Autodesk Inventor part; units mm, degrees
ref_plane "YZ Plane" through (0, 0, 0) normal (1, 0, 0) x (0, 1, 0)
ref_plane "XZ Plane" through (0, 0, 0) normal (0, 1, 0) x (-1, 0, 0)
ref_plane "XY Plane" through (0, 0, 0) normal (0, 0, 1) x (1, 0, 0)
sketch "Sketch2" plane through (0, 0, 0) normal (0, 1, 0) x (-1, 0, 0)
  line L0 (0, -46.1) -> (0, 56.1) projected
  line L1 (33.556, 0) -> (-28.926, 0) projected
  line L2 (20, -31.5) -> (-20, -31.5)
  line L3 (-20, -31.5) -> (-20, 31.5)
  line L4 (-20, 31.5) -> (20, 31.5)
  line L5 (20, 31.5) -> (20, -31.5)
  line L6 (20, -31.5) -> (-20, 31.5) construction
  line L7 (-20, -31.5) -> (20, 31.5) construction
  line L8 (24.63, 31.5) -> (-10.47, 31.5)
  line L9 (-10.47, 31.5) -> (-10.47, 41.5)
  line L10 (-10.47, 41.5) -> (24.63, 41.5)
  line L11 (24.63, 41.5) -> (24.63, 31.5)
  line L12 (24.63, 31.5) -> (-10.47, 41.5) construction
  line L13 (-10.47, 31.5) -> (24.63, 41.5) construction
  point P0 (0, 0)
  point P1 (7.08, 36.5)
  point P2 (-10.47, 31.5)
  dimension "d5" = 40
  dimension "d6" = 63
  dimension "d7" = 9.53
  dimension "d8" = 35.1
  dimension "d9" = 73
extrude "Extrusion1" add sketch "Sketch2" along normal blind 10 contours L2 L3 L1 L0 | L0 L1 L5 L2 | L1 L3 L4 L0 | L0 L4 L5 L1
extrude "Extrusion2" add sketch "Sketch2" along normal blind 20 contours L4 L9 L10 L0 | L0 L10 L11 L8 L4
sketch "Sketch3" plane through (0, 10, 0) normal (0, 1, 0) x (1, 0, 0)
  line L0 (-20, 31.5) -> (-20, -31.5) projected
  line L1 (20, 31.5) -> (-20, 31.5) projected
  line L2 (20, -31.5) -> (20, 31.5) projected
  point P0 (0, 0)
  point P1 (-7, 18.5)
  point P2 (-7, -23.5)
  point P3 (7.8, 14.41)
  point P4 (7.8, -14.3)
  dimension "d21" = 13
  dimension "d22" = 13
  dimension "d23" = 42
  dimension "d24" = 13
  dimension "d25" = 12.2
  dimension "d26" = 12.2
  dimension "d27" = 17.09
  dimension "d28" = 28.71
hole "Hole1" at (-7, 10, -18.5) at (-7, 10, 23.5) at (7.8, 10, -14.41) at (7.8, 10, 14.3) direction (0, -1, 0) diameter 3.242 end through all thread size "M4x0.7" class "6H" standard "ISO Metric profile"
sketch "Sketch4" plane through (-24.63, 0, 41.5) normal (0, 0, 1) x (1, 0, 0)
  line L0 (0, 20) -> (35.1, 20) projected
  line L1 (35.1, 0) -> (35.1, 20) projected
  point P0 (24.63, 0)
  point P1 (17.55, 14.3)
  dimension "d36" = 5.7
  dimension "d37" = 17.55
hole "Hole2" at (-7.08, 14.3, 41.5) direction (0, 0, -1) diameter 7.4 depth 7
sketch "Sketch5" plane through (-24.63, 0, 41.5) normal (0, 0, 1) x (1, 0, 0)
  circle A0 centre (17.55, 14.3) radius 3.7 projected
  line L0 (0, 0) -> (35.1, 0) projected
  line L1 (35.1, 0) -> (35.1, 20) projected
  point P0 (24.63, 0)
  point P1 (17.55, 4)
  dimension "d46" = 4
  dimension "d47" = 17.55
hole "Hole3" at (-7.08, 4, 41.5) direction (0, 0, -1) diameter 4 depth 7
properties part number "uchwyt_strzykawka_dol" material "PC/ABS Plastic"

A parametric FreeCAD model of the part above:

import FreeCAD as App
import Part
import Sketcher


def add_polygon(sketch, points):
    """Adds a closed chain of lines whose ends are joined by coincident constraints."""
    first, n = sketch.GeometryCount, len(points)
    for a, b in zip(points, points[1:] + points[:1]):
        sketch.addGeometry(Part.LineSegment(App.Vector(*a, 0), App.Vector(*b, 0)), False)
    for i in range(n):
        sketch.addConstraint(Sketcher.Constraint("Coincident", first + i, 2, first + (i + 1) % n, 1))

doc = App.newDocument("Part")
body = doc.addObject("PartDesign::Body", "Body")

# Sketch on XZ plane
sketch1 = body.newObject("Sketcher::SketchObject", "Sketch")
sketch1.AttachmentSupport = (doc.getObject("XZ_Plane"), [""])
sketch1.MapMode = "FlatFace"
add_polygon(sketch1, [(20, -31.5), (-20, -31.5), (-20, 31.5), (20, 31.5)])  # lines 0-3
sketch1.addConstraint(Sketcher.Constraint("Horizontal", 0))
sketch1.addConstraint(Sketcher.Constraint("Vertical", 1))
sketch1.addConstraint(Sketcher.Constraint("Horizontal", 2))
sketch1.addConstraint(Sketcher.Constraint("Vertical", 3))
sketch1.addConstraint(Sketcher.Constraint("Symmetric", 0, 2, 2, 2, -1, 1))
sketch1.addConstraint(Sketcher.Constraint("DistanceX", 0, 2, 0, 1, 40.0))
sketch1.addConstraint(Sketcher.Constraint("DistanceY", 1, 1, 1, 2, 63.0))
pad1 = body.newObject("PartDesign::Pad", "Pad")
pad1.Profile = sketch1
pad1.Length = 10
pad1.Reversed = True

# Sketch on XZ plane
sketch2 = body.newObject("Sketcher::SketchObject", "Sketch001")
sketch2.AttachmentSupport = (doc.getObject("XZ_Plane"), [""])
sketch2.MapMode = "FlatFace"
add_polygon(sketch2, [(10.47, 31.5), (-24.63, 31.5), (-24.63, 41.5), (10.47, 41.5)])  # lines 0-3
sketch2.addConstraint(Sketcher.Constraint("Horizontal", 0))
sketch2.addConstraint(Sketcher.Constraint("Vertical", 1))
sketch2.addConstraint(Sketcher.Constraint("Horizontal", 2))
sketch2.addConstraint(Sketcher.Constraint("Vertical", 3))
sketch2.addConstraint(Sketcher.Constraint("DistanceX", 0, 2, 0, 1, 35.1))
sketch2.addConstraint(Sketcher.Constraint("DistanceY", 1, 1, 1, 2, 10.0))
sketch2.addConstraint(Sketcher.Constraint("DistanceY", -1, 1, 0, 2, 31.5))
sketch2.addConstraint(Sketcher.Constraint("DistanceX", 0, 2, -1, 1, 24.63))
pad2 = body.newObject("PartDesign::Pad", "Pad001")
pad2.Profile = sketch2
pad2.Length = 20
pad2.Reversed = True

# Sketch on XZ plane
sketch3 = body.newObject("Sketcher::SketchObject", "Sketch002")
sketch3.AttachmentSupport = (doc.getObject("XZ_Plane"), [""])
sketch3.MapMode = "FlatFace"
sketch3.AttachmentOffset = App.Placement(App.Vector(0, 0, -10), App.Rotation())
sketch3.addGeometry(Part.Circle(App.Vector(-7, -18.5, 0), App.Vector(0, 0, 1), 1.621), False)
sketch3.addGeometry(Part.Circle(App.Vector(-7, 23.5, 0), App.Vector(0, 0, 1), 1.621), False)
sketch3.addGeometry(Part.Circle(App.Vector(7.8, -14.41, 0), App.Vector(0, 0, 1), 1.621), False)
sketch3.addGeometry(Part.Circle(App.Vector(7.8, 14.3, 0), App.Vector(0, 0, 1), 1.621), False)
sketch3.addConstraint(Sketcher.Constraint("Equal", 0, 1))
sketch3.addConstraint(Sketcher.Constraint("Equal", 1, 2))
sketch3.addConstraint(Sketcher.Constraint("Equal", 2, 3))
sketch3.addConstraint(Sketcher.Constraint("Vertical", 0, 3, 1, 3))
sketch3.addConstraint(Sketcher.Constraint("Vertical", 2, 3, 3, 3))
sketch3.addConstraint(Sketcher.Constraint("Diameter", 0, 3.242))
sketch3.addConstraint(Sketcher.Constraint("DistanceX", 0, 3, -1, 1, 7.0))
sketch3.addConstraint(Sketcher.Constraint("DistanceY", 0, 3, 1, 3, 42.0))
sketch3.addConstraint(Sketcher.Constraint("DistanceY", 0, 3, -1, 1, 18.5))
sketch3.addConstraint(Sketcher.Constraint("DistanceX", -1, 1, 2, 3, 7.8))
sketch3.addConstraint(Sketcher.Constraint("DistanceY", -1, 1, 3, 3, 14.3))
sketch3.addConstraint(Sketcher.Constraint("DistanceY", 2, 3, -1, 1, 14.41))
doc.recompute()
hole = body.newObject("PartDesign::Hole", "Hole")
hole.Profile = sketch3
hole.ThreadType = "None"
hole.Diameter = 3.242
hole.DepthType = "ThroughAll"
hole.Reversed = True

# Sketch on XY plane
sketch4 = body.newObject("Sketcher::SketchObject", "Sketch003")
sketch4.AttachmentSupport = (doc.getObject("XY_Plane"), [""])
sketch4.MapMode = "FlatFace"
sketch4.AttachmentOffset = App.Placement(App.Vector(0, 0, 41.5), App.Rotation())
sketch4.addGeometry(Part.Circle(App.Vector(-7.08, 14.3, 0), App.Vector(0, 0, 1), 3.7), False)
sketch4.addConstraint(Sketcher.Constraint("Diameter", 0, 7.4))
sketch4.addConstraint(Sketcher.Constraint("DistanceY", -1, 1, 0, 3, 14.3))
sketch4.addConstraint(Sketcher.Constraint("DistanceX", 0, 3, -1, 1, 7.08))
doc.recompute()
hole2 = body.newObject("PartDesign::Hole", "Hole001")
hole2.Profile = sketch4
hole2.ThreadType = "None"
hole2.Diameter = 7.4
hole2.DepthType = "Dimension"
hole2.Depth = 7
hole2.DrillPoint = "Flat"

# Sketch on XY plane
sketch5 = body.newObject("Sketcher::SketchObject", "Sketch004")
sketch5.AttachmentSupport = (doc.getObject("XY_Plane"), [""])
sketch5.MapMode = "FlatFace"
sketch5.AttachmentOffset = App.Placement(App.Vector(0, 0, 41.5), App.Rotation())
sketch5.addGeometry(Part.Circle(App.Vector(-7.08, 4, 0), App.Vector(0, 0, 1), 2), False)
sketch5.addConstraint(Sketcher.Constraint("Diameter", 0, 4.0))
sketch5.addConstraint(Sketcher.Constraint("DistanceY", -1, 1, 0, 3, 4.0))
sketch5.addConstraint(Sketcher.Constraint("DistanceX", 0, 3, -1, 1, 7.08))
doc.recompute()
hole3 = body.newObject("PartDesign::Hole", "Hole002")
hole3.Profile = sketch5
hole3.ThreadType = "None"
hole3.Diameter = 4
hole3.DepthType = "Dimension"
hole3.Depth = 7
hole3.DrillPoint = "Flat"

doc.recompute()
